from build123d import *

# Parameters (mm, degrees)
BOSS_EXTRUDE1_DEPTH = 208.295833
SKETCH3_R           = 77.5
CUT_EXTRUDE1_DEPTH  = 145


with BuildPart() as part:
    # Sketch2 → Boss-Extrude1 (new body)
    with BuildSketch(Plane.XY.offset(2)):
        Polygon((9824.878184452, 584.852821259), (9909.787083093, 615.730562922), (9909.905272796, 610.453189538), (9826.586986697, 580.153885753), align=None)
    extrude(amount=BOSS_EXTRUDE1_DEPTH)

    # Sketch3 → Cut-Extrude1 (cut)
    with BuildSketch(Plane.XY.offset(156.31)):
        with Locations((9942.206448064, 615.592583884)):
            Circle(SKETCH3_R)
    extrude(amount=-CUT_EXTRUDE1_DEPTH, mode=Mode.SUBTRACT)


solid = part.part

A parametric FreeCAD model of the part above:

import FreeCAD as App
import Part
import Sketcher
from FreeCAD import Vector
Q = App.Units.Quantity


def add_polygon(sketch, points):
    """Adds a closed chain of lines whose ends are joined by coincident constraints."""
    first, n = sketch.GeometryCount, len(points)
    for a, b in zip(points, points[1:] + points[:1]):
        sketch.addGeometry(Part.LineSegment(App.Vector(*a, 0), App.Vector(*b, 0)), False)
    for i in range(n):
        sketch.addConstraint(Sketcher.Constraint("Coincident", first + i, 2, first + (i + 1) % n, 1))

doc = App.newDocument("Part")
body = doc.addObject("PartDesign::Body", "Body")

sketch1 = body.newObject("Sketcher::SketchObject", "Sketch")
sketch1.AttachmentSupport = (doc.getObject("XY_Plane"), [""])
sketch1.MapMode = "FlatFace"
sketch1.AttachmentOffset = App.Placement(Vector(0, 0, 2), App.Rotation())
add_polygon(sketch1, [(9910, 616), (9825, 585), (9827, 580), (9910, 610)])
sketch1.addConstraint([
    Sketcher.Constraint("Perpendicular", 0, 1),
    Sketcher.Constraint("Perpendicular", 1, 2),
    Sketcher.Constraint("Distance", 1, Q("5 mm")),
    Sketcher.Constraint("DistanceX", 0, 2, 3, 2, Q("84.908899 mm")),
    Sketcher.Constraint("Distance", 0, Q("90.349079 mm")),
    Sketcher.Constraint("DistanceY", -1, 1, 0, 2, Q("584.852821 mm")),
    Sketcher.Constraint("DistanceY", -1, 1, 2, 2, Q("610.45319 mm")),
    Sketcher.Constraint("DistanceX", -1, 1, 0, 2, Q("9824.878184 mm")),
])
pad1 = body.newObject("PartDesign::Pad", "Pad")
pad1.Profile = sketch1
pad1.Length = 208.295833

sketch2 = body.newObject("Sketcher::SketchObject", "Sketch001")
sketch2.AttachmentSupport = (doc.getObject("XY_Plane"), [""])
sketch2.MapMode = "FlatFace"
sketch2.AttachmentOffset = App.Placement(Vector(0, 0, 156.31), App.Rotation())
sketch2.addGeometry(Part.Circle(Vector(9942, 616, 0), Vector(0, 0, 1), 78), False)
sketch2.addConstraint([
    Sketcher.Constraint("Diameter", 0, Q("155 mm")),
    Sketcher.Constraint("DistanceX", -1, 1, 0, 3, Q("9942.206448 mm")),
    Sketcher.Constraint("DistanceY", -1, 1, 0, 3, Q("615.592584 mm")),
])
pocket1 = body.newObject("PartDesign::Pocket", "Pocket")
pocket1.Profile = sketch2
pocket1.Length = 145

doc.recompute()
